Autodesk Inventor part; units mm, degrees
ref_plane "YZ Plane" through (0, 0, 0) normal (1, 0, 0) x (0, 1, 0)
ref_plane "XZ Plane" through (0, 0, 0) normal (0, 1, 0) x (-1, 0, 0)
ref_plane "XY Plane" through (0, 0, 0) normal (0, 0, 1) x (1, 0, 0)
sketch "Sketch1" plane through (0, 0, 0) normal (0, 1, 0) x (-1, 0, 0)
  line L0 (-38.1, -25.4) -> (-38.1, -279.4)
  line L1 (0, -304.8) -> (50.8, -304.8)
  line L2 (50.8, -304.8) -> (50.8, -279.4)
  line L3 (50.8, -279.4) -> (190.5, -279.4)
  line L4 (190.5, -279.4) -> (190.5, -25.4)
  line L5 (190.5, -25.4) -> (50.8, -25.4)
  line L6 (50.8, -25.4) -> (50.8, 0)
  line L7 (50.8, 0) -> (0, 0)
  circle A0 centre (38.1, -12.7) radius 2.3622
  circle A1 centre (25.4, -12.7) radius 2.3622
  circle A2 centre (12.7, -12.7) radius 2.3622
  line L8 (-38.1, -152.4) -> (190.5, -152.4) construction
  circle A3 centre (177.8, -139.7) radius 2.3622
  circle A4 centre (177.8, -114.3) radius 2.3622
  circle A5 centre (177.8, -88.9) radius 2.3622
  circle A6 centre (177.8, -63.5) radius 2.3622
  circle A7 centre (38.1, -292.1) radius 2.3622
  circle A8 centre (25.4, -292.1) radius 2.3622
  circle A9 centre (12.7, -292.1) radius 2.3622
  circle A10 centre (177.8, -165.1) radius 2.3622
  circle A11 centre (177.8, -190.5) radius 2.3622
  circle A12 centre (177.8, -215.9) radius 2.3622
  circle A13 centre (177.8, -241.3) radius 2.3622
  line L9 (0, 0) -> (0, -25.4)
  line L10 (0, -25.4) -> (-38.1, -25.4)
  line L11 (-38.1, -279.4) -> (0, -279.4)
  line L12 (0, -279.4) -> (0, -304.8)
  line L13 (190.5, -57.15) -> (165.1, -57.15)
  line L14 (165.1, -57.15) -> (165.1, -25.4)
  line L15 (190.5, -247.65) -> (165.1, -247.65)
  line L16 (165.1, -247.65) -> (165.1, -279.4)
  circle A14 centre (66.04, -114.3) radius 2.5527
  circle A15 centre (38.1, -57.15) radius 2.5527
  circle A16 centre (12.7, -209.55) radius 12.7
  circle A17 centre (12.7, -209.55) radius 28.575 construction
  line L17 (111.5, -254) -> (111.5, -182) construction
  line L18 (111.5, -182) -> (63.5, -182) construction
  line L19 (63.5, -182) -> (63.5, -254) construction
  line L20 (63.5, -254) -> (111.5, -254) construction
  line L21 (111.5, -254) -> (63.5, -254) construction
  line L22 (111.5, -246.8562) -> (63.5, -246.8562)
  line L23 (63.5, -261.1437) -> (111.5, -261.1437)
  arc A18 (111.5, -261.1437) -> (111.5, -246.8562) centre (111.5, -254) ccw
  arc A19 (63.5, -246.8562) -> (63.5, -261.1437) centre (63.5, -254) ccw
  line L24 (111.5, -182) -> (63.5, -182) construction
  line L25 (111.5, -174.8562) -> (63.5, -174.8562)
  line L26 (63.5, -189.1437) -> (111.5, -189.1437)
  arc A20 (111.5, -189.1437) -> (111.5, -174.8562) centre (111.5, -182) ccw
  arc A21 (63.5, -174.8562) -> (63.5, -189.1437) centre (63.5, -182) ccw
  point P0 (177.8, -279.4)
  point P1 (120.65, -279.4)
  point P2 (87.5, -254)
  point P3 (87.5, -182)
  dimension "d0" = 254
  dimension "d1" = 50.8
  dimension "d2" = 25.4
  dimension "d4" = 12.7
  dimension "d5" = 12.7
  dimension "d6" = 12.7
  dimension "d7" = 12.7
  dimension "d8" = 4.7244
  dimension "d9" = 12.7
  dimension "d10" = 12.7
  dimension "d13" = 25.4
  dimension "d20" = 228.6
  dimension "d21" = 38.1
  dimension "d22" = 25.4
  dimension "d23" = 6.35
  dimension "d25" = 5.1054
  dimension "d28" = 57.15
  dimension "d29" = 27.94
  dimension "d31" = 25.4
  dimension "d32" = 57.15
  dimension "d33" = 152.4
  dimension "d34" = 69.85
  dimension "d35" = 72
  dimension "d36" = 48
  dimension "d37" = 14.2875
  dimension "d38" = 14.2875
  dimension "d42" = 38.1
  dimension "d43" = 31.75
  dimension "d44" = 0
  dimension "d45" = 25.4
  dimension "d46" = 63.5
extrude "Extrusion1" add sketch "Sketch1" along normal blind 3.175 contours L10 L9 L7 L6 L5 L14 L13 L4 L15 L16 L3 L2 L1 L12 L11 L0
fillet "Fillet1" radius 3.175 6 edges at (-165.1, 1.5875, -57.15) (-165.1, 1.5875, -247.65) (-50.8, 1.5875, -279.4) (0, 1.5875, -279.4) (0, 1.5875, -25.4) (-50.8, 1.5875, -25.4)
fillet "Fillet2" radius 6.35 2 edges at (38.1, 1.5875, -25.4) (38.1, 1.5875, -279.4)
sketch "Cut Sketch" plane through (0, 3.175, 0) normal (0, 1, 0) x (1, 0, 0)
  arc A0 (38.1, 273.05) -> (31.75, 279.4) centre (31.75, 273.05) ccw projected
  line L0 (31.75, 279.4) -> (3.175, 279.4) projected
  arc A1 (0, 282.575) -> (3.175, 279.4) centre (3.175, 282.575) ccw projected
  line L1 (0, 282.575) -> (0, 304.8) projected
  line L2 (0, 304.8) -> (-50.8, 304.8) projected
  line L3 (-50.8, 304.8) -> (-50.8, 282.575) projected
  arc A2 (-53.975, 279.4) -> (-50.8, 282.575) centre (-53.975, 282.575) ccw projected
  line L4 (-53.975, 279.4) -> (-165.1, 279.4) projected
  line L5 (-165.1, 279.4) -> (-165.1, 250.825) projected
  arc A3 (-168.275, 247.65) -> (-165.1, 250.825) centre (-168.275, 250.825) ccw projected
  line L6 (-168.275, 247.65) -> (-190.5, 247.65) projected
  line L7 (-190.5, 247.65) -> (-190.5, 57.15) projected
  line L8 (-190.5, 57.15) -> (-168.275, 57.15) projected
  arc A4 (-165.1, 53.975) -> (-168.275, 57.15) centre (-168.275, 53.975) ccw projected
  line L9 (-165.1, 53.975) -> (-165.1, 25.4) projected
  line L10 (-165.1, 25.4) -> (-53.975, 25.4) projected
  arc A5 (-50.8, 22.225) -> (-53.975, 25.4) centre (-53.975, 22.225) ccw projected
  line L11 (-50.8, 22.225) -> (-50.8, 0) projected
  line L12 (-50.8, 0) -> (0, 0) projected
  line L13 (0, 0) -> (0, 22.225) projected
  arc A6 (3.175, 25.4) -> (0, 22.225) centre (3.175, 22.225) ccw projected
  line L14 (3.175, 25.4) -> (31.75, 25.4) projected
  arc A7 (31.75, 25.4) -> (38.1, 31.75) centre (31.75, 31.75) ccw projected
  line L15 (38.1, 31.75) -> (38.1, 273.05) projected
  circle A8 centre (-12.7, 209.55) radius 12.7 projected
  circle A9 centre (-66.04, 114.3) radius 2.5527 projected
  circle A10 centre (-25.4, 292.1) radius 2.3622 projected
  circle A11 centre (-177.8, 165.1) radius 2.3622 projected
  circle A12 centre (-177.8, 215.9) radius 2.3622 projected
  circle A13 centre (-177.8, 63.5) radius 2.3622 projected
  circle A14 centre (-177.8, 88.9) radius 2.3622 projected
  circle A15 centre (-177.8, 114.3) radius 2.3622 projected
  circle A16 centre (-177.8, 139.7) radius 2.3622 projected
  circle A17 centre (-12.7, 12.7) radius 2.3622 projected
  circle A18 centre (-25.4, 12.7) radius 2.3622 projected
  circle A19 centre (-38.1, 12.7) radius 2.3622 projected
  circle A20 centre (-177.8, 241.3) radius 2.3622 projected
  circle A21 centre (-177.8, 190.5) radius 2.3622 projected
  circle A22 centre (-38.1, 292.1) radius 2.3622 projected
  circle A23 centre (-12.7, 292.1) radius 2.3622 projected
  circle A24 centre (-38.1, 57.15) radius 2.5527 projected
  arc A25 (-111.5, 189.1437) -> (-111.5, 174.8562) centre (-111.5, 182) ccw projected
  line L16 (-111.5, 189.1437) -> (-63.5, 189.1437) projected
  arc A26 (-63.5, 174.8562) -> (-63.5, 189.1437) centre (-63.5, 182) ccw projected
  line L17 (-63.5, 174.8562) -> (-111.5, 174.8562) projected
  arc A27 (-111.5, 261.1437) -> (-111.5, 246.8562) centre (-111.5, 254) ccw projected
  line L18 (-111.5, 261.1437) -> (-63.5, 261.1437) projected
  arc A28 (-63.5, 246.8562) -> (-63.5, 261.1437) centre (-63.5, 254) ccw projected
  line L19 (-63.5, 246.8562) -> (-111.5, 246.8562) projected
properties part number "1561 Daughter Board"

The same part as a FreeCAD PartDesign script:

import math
import FreeCAD as App
import Part
import Sketcher

V = App.Vector
Q = App.Units.Quantity


def edges_at(feature, points):
    """Names of the edges that pass closest to the given points."""
    edges = feature.Shape.Edges
    near = lambda p: min(range(len(edges)), key=lambda i: edges[i].distToShape(Part.Vertex(*p))[0])
    return sorted({f"Edge{near(p) + 1}" for p in points})


def add_polygon(sketch, points):
    """Adds a closed chain of lines whose ends are joined by coincident constraints."""
    first, n = sketch.GeometryCount, len(points)
    for a, b in zip(points, points[1:] + points[:1]):
        sketch.addGeometry(Part.LineSegment(App.Vector(*a, 0), App.Vector(*b, 0)), False)
    for i in range(n):
        sketch.addConstraint(Sketcher.Constraint("Coincident", first + i, 2, first + (i + 1) % n, 1))

doc = App.newDocument("Part")
params = doc.addObject("Spreadsheet::Sheet", "Params")
for row, (alias, value) in enumerate([
    ("sketch1_diameter", "1 in"),
    ("sketch1_width", "2 in"),
    ("sketch1_width2", "1 in"),
    ("sketch1_height", "10 in"),
    ("sketch1_diameter2", "0.186 in"),
    ("pad1_length", "0.125 in"),
    ("fillet_radius", "0.125 in"),
    ("fillet2_radius", "0.25 in"),
], start=1):
    params.set(f"A{row}", alias)
    params.set(f"B{row}", "=" + value)
    params.setAlias(f"B{row}", alias)

body = doc.addObject("PartDesign::Body", "Body")

# Sketch on XZ plane
sketch1 = doc.addObject("Sketcher::SketchObject", "Sketch")
body.addObject(sketch1)
sketch1.AttachmentSupport = (doc.XZ_Plane, [""])
sketch1.MapMode = "FlatFace"
add_polygon(sketch1, [(0, -25.4), (38.1, -25.4), (38.1, -279.4), (0, -279.4), (0, -304.8), (-50.8, -304.8), (-50.8, -279.4), (-165.1, -279.4), (-165.1, -247.7), (-190.5, -247.7), (-190.5, -57.1), (-165.1, -57.1), (-165.1, -25.4), (-50.8, -25.4), (-50.8, 0), (0, 0)])  # lines 0-15
sketch1.addGeometry(Part.Circle(V(-12.7, -292.1, 0), V(0, 0, 1), 2.4), False)  # 16
sketch1.addGeometry(Part.Circle(V(-25.4, -292.1, 0), V(0, 0, 1), 2.4), False)  # 17
sketch1.addGeometry(Part.Circle(V(-38.1, -292.1, 0), V(0, 0, 1), 2.4), False)  # 18
sketch1.addGeometry(Part.Circle(V(-12.7, -209.6, 0), V(0, 0, 1), 12.7), False)  # 19
sketch1.addGeometry(Part.LineSegment(V(-63.5, -246.9, 0), V(-111.5, -246.9, 0)), False)  # 20
sketch1.addGeometry(Part.ArcOfCircle(Part.Circle(V(-111.5, -254, 0), V(0, 0, 1), 7.1), math.radians(90), math.radians(270)), False)  # 21
sketch1.addGeometry(Part.LineSegment(V(-111.5, -261.1, 0), V(-63.5, -261.1, 0)), False)  # 22
sketch1.addGeometry(Part.ArcOfCircle(Part.Circle(V(-63.5, -254, 0), V(0, 0, 1), 7.1), math.radians(-90), math.radians(90)), False)  # 23
sketch1.addGeometry(Part.Circle(V(-177.8, -241.3, 0), V(0, 0, 1), 2.4), False)  # 24
sketch1.addGeometry(Part.LineSegment(V(-63.5, -174.9, 0), V(-111.5, -174.9, 0)), False)  # 25
sketch1.addGeometry(Part.ArcOfCircle(Part.Circle(V(-111.5, -182, 0), V(0, 0, 1), 7.1), math.radians(90), math.radians(270)), False)  # 26
sketch1.addGeometry(Part.LineSegment(V(-111.5, -189.1, 0), V(-63.5, -189.1, 0)), False)  # 27
sketch1.addGeometry(Part.ArcOfCircle(Part.Circle(V(-63.5, -182, 0), V(0, 0, 1), 7.1), math.radians(-90), math.radians(90)), False)  # 28
sketch1.addGeometry(Part.Circle(V(-177.8, -215.9, 0), V(0, 0, 1), 2.4), False)  # 29
sketch1.addGeometry(Part.Circle(V(-177.8, -190.5, 0), V(0, 0, 1), 2.4), False)  # 30
sketch1.addGeometry(Part.Circle(V(-177.8, -165.1, 0), V(0, 0, 1), 2.4), False)  # 31
sketch1.addGeometry(Part.Circle(V(-66, -114.3, 0), V(0, 0, 1), 2.6), False)  # 32
sketch1.addGeometry(Part.Circle(V(-12.7, -12.7, 0), V(0, 0, 1), 2.4), False)  # 33
sketch1.addGeometry(Part.Circle(V(-38.1, -57.1, 0), V(0, 0, 1), 2.6), False)  # 34
sketch1.addGeometry(Part.Circle(V(-25.4, -12.7, 0), V(0, 0, 1), 2.4), False)  # 35
sketch1.addGeometry(Part.Circle(V(-38.1, -12.7, 0), V(0, 0, 1), 2.4), False)  # 36
sketch1.addGeometry(Part.Circle(V(-177.8, -139.7, 0), V(0, 0, 1), 2.4), False)  # 37
sketch1.addGeometry(Part.Circle(V(-177.8, -114.3, 0), V(0, 0, 1), 2.4), False)  # 38
sketch1.addGeometry(Part.Circle(V(-177.8, -88.9, 0), V(0, 0, 1), 2.4), False)  # 39
sketch1.addGeometry(Part.Circle(V(-177.8, -63.5, 0), V(0, 0, 1), 2.4), False)  # 40
sketch1.addConstraint(Sketcher.Constraint("Tangent", 20, 2, 21, 1))
sketch1.addConstraint(Sketcher.Constraint("Tangent", 21, 2, 22, 1))
sketch1.addConstraint(Sketcher.Constraint("Tangent", 22, 2, 23, 1))
sketch1.addConstraint(Sketcher.Constraint("Tangent", 23, 2, 20, 1))
sketch1.addConstraint(Sketcher.Constraint("Tangent", 25, 2, 26, 1))
sketch1.addConstraint(Sketcher.Constraint("Tangent", 26, 2, 27, 1))
sketch1.addConstraint(Sketcher.Constraint("Tangent", 27, 2, 28, 1))
sketch1.addConstraint(Sketcher.Constraint("Tangent", 28, 2, 25, 1))
sketch1.addConstraint(Sketcher.Constraint("Horizontal", 0))
sketch1.addConstraint(Sketcher.Constraint("Vertical", 1))
sketch1.addConstraint(Sketcher.Constraint("Horizontal", 2))
sketch1.addConstraint(Sketcher.Constraint("Vertical", 3))
sketch1.addConstraint(Sketcher.Constraint("Horizontal", 4))
sketch1.addConstraint(Sketcher.Constraint("Vertical", 5))
sketch1.addConstraint(Sketcher.Constraint("Horizontal", 6))
sketch1.addConstraint(Sketcher.Constraint("Vertical", 7))
sketch1.addConstraint(Sketcher.Constraint("Horizontal", 8))
sketch1.addConstraint(Sketcher.Constraint("Vertical", 9))
sketch1.addConstraint(Sketcher.Constraint("Horizontal", 10))
sketch1.addConstraint(Sketcher.Constraint("Vertical", 11))
sketch1.addConstraint(Sketcher.Constraint("Horizontal", 12))
sketch1.addConstraint(Sketcher.Constraint("Vertical", 13))
sketch1.addConstraint(Sketcher.Constraint("Horizontal", 14))
sketch1.addConstraint(Sketcher.Constraint("Vertical", 15))
sketch1.addConstraint(Sketcher.Constraint("Horizontal", 20))
sketch1.addConstraint(Sketcher.Constraint("Horizontal", 22))
sketch1.addConstraint(Sketcher.Constraint("Horizontal", 25))
sketch1.addConstraint(Sketcher.Constraint("Horizontal", 27))
sketch1.addConstraint(Sketcher.Constraint("Coincident", 14, 2, -1, 1))
sketch1.addConstraint(Sketcher.Constraint("Equal", 16, 17))
sketch1.addConstraint(Sketcher.Constraint("Equal", 17, 18))
sketch1.addConstraint(Sketcher.Constraint("Equal", 18, 24))
sketch1.addConstraint(Sketcher.Constraint("Equal", 23, 26))
sketch1.addConstraint(Sketcher.Constraint("Equal", 24, 29))
sketch1.addConstraint(Sketcher.Constraint("Equal", 29, 30))
sketch1.addConstraint(Sketcher.Constraint("Equal", 30, 31))
sketch1.addConstraint(Sketcher.Constraint("Equal", 31, 33))
sketch1.addConstraint(Sketcher.Constraint("Equal", 32, 34))
sketch1.addConstraint(Sketcher.Constraint("Equal", 33, 35))
sketch1.addConstraint(Sketcher.Constraint("Equal", 35, 36))
sketch1.addConstraint(Sketcher.Constraint("Equal", 36, 37))
sketch1.addConstraint(Sketcher.Constraint("Equal", 37, 38))
sketch1.addConstraint(Sketcher.Constraint("Equal", 38, 39))
sketch1.addConstraint(Sketcher.Constraint("Equal", 39, 40))
sketch1.addConstraint(Sketcher.Constraint("PointOnObject", 2, 2, -2))
sketch1.addConstraint(Sketcher.Constraint("Horizontal", 16, 3, 17, 3))
sketch1.addConstraint(Sketcher.Constraint("Horizontal", 17, 3, 18, 3))
sketch1.addConstraint(Sketcher.Constraint("Horizontal", 33, 3, 35, 3))
sketch1.addConstraint(Sketcher.Constraint("Horizontal", 35, 3, 36, 3))
sketch1.addConstraint(Sketcher.Constraint("Horizontal", 32, 3, 38, 3))
sketch1.addConstraint(Sketcher.Constraint("Horizontal", 2, 2, 5, 2))
sketch1.addConstraint(Sketcher.Constraint("Horizontal", 34, 3, 9, 2))
sketch1.addConstraint(Sketcher.Constraint("Horizontal", 0, 2, 11, 2))
sketch1.addConstraint(Sketcher.Constraint("Vertical", 16, 3, 19, 3))
sketch1.addConstraint(Sketcher.Constraint("Vertical", 21, 3, 26, 3))
sketch1.addConstraint(Sketcher.Constraint("Vertical", 23, 3, 28, 3))
sketch1.addConstraint(Sketcher.Constraint("Vertical", 24, 3, 29, 3))
sketch1.addConstraint(Sketcher.Constraint("Vertical", 29, 3, 30, 3))
sketch1.addConstraint(Sketcher.Constraint("Vertical", 30, 3, 31, 3))
sketch1.addConstraint(Sketcher.Constraint("Vertical", 19, 3, 33, 3))
sketch1.addConstraint(Sketcher.Constraint("Vertical", 18, 3, 34, 3))
sketch1.addConstraint(Sketcher.Constraint("Vertical", 17, 3, 35, 3))
sketch1.addConstraint(Sketcher.Constraint("Vertical", 34, 3, 36, 3))
sketch1.addConstraint(Sketcher.Constraint("Vertical", 31, 3, 37, 3))
sketch1.addConstraint(Sketcher.Constraint("Vertical", 37, 3, 38, 3))
sketch1.addConstraint(Sketcher.Constraint("Vertical", 38, 3, 39, 3))
sketch1.addConstraint(Sketcher.Constraint("Vertical", 39, 3, 40, 3))
sketch1.addConstraint(Sketcher.Constraint("Vertical", 7, 2, 10, 2))
sketch1.addConstraint(Sketcher.Constraint("Vertical", 5, 2, 12, 2))
sketch1.addConstraint(Sketcher.Constraint("Equal", 10, 3))
sketch1.addConstraint(Sketcher.Constraint("Equal", 7, 11))
sketch1.addConstraint(Sketcher.Constraint("Equal", 5, 13))
sketch1.addConstraint(Sketcher.Constraint("Diameter", 19, Q("1 in")))
sketch1.addConstraint(Sketcher.Constraint("DistanceX", 4, 2, 4, 1, Q("2 in")))
sketch1.addConstraint(Sketcher.Constraint("DistanceX", 8, 2, 8, 1, Q("1 in")))
sketch1.addConstraint(Sketcher.Constraint("DistanceY", 1, 2, 1, 1, Q("10 in")))
sketch1.addConstraint(Sketcher.Constraint("Diameter", 16, Q("0.186 in")))
sketch1.addConstraint(Sketcher.Constraint("Diameter", 32, Q("0.201 in")))
sketch1.addConstraint(Sketcher.Constraint("DistanceX", 0, 1, 0, 2, Q("1.5 in")))
sketch1.addConstraint(Sketcher.Constraint("DistanceX", 17, 3, -1, 1, Q("1 in")))
sketch1.addConstraint(Sketcher.Constraint("DistanceY", 21, 3, -1, 1, Q("10 in")))
sketch1.addConstraint(Sketcher.Constraint("Radius", 21, Q("0.281248 in")))
sketch1.addConstraint(Sketcher.Constraint("DistanceX", 18, 3, 16, 3, Q("1 in")))
sketch1.addConstraint(Sketcher.Constraint("DistanceX", 23, 3, 18, 3, Q("1 in")))
sketch1.addConstraint(Sketcher.Constraint("DistanceY", 18, 3, 24, 3, Q("2 in")))
sketch1.addConstraint(Sketcher.Constraint("DistanceX", 24, 3, 17, 3, Q("6 in")))
sketch1.addConstraint(Sketcher.Constraint("DistanceY", 24, 3, 29, 3, Q("1 in")))
sketch1.addConstraint(Sketcher.Constraint("DistanceY", 29, 3, 30, 3, Q("1 in")))
sketch1.addConstraint(Sketcher.Constraint("DistanceY", 30, 3, 31, 3, Q("1 in")))
sketch1.addConstraint(Sketcher.Constraint("DistanceY", 31, 3, 32, 3, Q("2 in")))
sketch1.addConstraint(Sketcher.Constraint("DistanceY", 31, 3, 33, 3, Q("6 in")))
sketch1.addConstraint(Sketcher.Constraint("DistanceY", 19, 3, 34, 3, Q("6 in")))
sketch1.addConstraint(Sketcher.Constraint("DistanceY", 31, 3, 37, 3, Q("1 in")))
sketch1.addConstraint(Sketcher.Constraint("DistanceY", 38, 3, 39, 3, Q("1 in")))
sketch1.addConstraint(Sketcher.Constraint("DistanceY", 39, 3, 40, 3, Q("1 in")))
sketch1.addConstraint(Sketcher.Constraint("DistanceX", 33, 3, 0, 2, Q("2 in")))
sketch1.addConstraint(Sketcher.Constraint("DistanceY", 7, 1, 7, 2, Q("1.25 in")))
sketch1.addConstraint(Sketcher.Constraint("DistanceY", 33, 3, -1, 1, Q("0.5 in")))
sketch1.addConstraint(Sketcher.Constraint("DistanceX", 32, 3, 34, 3, Q("1.1 in")))
sketch1.addConstraint(Sketcher.Constraint("DistanceX", 24, 3, 6, 2, Q("0.5 in")))
sketch1.addConstraint(Sketcher.Constraint("DistanceX", 20, 2, 20, 1, Q("48 mm")))
sketch1.addConstraint(Sketcher.Constraint("DistanceY", 21, 3, 26, 3, Q("72 mm")))
sketch1.setExpression("Constraints[88]", "Params.sketch1_diameter")
sketch1.setExpression("Constraints[89]", "Params.sketch1_width")
sketch1.setExpression("Constraints[90]", "Params.sketch1_width2")
sketch1.setExpression("Constraints[91]", "Params.sketch1_height")
sketch1.setExpression("Constraints[92]", "Params.sketch1_diameter2")
pad1 = doc.addObject("PartDesign::Pad", "Pad")
body.addObject(pad1)
pad1.Profile = sketch1
pad1.setExpression("Length", "Params.pad1_length")
pad1.Reversed = True
doc.recompute()

fillet = doc.addObject("PartDesign::Fillet", "Fillet")
body.addObject(fillet)
fillet.Base = (pad1, edges_at(pad1, [
    (-165.1, 1.587, -57.15),
    (-165.1, 1.587, -247.65),
    (-50.8, 1.587, -279.4),
    (0, 1.587, -279.4),
    (0, 1.587, -25.4),
    (-50.8, 1.587, -25.4),
]))
fillet.setExpression("Radius", "Params.fillet_radius")
doc.recompute()

fillet2 = doc.addObject("PartDesign::Fillet", "Fillet001")
body.addObject(fillet2)
fillet2.Base = (fillet, edges_at(fillet, [(38.1, 1.587, -25.4), (38.1, 1.587, -279.4)]))
fillet2.setExpression("Radius", "Params.fillet2_radius")

doc.recompute()
